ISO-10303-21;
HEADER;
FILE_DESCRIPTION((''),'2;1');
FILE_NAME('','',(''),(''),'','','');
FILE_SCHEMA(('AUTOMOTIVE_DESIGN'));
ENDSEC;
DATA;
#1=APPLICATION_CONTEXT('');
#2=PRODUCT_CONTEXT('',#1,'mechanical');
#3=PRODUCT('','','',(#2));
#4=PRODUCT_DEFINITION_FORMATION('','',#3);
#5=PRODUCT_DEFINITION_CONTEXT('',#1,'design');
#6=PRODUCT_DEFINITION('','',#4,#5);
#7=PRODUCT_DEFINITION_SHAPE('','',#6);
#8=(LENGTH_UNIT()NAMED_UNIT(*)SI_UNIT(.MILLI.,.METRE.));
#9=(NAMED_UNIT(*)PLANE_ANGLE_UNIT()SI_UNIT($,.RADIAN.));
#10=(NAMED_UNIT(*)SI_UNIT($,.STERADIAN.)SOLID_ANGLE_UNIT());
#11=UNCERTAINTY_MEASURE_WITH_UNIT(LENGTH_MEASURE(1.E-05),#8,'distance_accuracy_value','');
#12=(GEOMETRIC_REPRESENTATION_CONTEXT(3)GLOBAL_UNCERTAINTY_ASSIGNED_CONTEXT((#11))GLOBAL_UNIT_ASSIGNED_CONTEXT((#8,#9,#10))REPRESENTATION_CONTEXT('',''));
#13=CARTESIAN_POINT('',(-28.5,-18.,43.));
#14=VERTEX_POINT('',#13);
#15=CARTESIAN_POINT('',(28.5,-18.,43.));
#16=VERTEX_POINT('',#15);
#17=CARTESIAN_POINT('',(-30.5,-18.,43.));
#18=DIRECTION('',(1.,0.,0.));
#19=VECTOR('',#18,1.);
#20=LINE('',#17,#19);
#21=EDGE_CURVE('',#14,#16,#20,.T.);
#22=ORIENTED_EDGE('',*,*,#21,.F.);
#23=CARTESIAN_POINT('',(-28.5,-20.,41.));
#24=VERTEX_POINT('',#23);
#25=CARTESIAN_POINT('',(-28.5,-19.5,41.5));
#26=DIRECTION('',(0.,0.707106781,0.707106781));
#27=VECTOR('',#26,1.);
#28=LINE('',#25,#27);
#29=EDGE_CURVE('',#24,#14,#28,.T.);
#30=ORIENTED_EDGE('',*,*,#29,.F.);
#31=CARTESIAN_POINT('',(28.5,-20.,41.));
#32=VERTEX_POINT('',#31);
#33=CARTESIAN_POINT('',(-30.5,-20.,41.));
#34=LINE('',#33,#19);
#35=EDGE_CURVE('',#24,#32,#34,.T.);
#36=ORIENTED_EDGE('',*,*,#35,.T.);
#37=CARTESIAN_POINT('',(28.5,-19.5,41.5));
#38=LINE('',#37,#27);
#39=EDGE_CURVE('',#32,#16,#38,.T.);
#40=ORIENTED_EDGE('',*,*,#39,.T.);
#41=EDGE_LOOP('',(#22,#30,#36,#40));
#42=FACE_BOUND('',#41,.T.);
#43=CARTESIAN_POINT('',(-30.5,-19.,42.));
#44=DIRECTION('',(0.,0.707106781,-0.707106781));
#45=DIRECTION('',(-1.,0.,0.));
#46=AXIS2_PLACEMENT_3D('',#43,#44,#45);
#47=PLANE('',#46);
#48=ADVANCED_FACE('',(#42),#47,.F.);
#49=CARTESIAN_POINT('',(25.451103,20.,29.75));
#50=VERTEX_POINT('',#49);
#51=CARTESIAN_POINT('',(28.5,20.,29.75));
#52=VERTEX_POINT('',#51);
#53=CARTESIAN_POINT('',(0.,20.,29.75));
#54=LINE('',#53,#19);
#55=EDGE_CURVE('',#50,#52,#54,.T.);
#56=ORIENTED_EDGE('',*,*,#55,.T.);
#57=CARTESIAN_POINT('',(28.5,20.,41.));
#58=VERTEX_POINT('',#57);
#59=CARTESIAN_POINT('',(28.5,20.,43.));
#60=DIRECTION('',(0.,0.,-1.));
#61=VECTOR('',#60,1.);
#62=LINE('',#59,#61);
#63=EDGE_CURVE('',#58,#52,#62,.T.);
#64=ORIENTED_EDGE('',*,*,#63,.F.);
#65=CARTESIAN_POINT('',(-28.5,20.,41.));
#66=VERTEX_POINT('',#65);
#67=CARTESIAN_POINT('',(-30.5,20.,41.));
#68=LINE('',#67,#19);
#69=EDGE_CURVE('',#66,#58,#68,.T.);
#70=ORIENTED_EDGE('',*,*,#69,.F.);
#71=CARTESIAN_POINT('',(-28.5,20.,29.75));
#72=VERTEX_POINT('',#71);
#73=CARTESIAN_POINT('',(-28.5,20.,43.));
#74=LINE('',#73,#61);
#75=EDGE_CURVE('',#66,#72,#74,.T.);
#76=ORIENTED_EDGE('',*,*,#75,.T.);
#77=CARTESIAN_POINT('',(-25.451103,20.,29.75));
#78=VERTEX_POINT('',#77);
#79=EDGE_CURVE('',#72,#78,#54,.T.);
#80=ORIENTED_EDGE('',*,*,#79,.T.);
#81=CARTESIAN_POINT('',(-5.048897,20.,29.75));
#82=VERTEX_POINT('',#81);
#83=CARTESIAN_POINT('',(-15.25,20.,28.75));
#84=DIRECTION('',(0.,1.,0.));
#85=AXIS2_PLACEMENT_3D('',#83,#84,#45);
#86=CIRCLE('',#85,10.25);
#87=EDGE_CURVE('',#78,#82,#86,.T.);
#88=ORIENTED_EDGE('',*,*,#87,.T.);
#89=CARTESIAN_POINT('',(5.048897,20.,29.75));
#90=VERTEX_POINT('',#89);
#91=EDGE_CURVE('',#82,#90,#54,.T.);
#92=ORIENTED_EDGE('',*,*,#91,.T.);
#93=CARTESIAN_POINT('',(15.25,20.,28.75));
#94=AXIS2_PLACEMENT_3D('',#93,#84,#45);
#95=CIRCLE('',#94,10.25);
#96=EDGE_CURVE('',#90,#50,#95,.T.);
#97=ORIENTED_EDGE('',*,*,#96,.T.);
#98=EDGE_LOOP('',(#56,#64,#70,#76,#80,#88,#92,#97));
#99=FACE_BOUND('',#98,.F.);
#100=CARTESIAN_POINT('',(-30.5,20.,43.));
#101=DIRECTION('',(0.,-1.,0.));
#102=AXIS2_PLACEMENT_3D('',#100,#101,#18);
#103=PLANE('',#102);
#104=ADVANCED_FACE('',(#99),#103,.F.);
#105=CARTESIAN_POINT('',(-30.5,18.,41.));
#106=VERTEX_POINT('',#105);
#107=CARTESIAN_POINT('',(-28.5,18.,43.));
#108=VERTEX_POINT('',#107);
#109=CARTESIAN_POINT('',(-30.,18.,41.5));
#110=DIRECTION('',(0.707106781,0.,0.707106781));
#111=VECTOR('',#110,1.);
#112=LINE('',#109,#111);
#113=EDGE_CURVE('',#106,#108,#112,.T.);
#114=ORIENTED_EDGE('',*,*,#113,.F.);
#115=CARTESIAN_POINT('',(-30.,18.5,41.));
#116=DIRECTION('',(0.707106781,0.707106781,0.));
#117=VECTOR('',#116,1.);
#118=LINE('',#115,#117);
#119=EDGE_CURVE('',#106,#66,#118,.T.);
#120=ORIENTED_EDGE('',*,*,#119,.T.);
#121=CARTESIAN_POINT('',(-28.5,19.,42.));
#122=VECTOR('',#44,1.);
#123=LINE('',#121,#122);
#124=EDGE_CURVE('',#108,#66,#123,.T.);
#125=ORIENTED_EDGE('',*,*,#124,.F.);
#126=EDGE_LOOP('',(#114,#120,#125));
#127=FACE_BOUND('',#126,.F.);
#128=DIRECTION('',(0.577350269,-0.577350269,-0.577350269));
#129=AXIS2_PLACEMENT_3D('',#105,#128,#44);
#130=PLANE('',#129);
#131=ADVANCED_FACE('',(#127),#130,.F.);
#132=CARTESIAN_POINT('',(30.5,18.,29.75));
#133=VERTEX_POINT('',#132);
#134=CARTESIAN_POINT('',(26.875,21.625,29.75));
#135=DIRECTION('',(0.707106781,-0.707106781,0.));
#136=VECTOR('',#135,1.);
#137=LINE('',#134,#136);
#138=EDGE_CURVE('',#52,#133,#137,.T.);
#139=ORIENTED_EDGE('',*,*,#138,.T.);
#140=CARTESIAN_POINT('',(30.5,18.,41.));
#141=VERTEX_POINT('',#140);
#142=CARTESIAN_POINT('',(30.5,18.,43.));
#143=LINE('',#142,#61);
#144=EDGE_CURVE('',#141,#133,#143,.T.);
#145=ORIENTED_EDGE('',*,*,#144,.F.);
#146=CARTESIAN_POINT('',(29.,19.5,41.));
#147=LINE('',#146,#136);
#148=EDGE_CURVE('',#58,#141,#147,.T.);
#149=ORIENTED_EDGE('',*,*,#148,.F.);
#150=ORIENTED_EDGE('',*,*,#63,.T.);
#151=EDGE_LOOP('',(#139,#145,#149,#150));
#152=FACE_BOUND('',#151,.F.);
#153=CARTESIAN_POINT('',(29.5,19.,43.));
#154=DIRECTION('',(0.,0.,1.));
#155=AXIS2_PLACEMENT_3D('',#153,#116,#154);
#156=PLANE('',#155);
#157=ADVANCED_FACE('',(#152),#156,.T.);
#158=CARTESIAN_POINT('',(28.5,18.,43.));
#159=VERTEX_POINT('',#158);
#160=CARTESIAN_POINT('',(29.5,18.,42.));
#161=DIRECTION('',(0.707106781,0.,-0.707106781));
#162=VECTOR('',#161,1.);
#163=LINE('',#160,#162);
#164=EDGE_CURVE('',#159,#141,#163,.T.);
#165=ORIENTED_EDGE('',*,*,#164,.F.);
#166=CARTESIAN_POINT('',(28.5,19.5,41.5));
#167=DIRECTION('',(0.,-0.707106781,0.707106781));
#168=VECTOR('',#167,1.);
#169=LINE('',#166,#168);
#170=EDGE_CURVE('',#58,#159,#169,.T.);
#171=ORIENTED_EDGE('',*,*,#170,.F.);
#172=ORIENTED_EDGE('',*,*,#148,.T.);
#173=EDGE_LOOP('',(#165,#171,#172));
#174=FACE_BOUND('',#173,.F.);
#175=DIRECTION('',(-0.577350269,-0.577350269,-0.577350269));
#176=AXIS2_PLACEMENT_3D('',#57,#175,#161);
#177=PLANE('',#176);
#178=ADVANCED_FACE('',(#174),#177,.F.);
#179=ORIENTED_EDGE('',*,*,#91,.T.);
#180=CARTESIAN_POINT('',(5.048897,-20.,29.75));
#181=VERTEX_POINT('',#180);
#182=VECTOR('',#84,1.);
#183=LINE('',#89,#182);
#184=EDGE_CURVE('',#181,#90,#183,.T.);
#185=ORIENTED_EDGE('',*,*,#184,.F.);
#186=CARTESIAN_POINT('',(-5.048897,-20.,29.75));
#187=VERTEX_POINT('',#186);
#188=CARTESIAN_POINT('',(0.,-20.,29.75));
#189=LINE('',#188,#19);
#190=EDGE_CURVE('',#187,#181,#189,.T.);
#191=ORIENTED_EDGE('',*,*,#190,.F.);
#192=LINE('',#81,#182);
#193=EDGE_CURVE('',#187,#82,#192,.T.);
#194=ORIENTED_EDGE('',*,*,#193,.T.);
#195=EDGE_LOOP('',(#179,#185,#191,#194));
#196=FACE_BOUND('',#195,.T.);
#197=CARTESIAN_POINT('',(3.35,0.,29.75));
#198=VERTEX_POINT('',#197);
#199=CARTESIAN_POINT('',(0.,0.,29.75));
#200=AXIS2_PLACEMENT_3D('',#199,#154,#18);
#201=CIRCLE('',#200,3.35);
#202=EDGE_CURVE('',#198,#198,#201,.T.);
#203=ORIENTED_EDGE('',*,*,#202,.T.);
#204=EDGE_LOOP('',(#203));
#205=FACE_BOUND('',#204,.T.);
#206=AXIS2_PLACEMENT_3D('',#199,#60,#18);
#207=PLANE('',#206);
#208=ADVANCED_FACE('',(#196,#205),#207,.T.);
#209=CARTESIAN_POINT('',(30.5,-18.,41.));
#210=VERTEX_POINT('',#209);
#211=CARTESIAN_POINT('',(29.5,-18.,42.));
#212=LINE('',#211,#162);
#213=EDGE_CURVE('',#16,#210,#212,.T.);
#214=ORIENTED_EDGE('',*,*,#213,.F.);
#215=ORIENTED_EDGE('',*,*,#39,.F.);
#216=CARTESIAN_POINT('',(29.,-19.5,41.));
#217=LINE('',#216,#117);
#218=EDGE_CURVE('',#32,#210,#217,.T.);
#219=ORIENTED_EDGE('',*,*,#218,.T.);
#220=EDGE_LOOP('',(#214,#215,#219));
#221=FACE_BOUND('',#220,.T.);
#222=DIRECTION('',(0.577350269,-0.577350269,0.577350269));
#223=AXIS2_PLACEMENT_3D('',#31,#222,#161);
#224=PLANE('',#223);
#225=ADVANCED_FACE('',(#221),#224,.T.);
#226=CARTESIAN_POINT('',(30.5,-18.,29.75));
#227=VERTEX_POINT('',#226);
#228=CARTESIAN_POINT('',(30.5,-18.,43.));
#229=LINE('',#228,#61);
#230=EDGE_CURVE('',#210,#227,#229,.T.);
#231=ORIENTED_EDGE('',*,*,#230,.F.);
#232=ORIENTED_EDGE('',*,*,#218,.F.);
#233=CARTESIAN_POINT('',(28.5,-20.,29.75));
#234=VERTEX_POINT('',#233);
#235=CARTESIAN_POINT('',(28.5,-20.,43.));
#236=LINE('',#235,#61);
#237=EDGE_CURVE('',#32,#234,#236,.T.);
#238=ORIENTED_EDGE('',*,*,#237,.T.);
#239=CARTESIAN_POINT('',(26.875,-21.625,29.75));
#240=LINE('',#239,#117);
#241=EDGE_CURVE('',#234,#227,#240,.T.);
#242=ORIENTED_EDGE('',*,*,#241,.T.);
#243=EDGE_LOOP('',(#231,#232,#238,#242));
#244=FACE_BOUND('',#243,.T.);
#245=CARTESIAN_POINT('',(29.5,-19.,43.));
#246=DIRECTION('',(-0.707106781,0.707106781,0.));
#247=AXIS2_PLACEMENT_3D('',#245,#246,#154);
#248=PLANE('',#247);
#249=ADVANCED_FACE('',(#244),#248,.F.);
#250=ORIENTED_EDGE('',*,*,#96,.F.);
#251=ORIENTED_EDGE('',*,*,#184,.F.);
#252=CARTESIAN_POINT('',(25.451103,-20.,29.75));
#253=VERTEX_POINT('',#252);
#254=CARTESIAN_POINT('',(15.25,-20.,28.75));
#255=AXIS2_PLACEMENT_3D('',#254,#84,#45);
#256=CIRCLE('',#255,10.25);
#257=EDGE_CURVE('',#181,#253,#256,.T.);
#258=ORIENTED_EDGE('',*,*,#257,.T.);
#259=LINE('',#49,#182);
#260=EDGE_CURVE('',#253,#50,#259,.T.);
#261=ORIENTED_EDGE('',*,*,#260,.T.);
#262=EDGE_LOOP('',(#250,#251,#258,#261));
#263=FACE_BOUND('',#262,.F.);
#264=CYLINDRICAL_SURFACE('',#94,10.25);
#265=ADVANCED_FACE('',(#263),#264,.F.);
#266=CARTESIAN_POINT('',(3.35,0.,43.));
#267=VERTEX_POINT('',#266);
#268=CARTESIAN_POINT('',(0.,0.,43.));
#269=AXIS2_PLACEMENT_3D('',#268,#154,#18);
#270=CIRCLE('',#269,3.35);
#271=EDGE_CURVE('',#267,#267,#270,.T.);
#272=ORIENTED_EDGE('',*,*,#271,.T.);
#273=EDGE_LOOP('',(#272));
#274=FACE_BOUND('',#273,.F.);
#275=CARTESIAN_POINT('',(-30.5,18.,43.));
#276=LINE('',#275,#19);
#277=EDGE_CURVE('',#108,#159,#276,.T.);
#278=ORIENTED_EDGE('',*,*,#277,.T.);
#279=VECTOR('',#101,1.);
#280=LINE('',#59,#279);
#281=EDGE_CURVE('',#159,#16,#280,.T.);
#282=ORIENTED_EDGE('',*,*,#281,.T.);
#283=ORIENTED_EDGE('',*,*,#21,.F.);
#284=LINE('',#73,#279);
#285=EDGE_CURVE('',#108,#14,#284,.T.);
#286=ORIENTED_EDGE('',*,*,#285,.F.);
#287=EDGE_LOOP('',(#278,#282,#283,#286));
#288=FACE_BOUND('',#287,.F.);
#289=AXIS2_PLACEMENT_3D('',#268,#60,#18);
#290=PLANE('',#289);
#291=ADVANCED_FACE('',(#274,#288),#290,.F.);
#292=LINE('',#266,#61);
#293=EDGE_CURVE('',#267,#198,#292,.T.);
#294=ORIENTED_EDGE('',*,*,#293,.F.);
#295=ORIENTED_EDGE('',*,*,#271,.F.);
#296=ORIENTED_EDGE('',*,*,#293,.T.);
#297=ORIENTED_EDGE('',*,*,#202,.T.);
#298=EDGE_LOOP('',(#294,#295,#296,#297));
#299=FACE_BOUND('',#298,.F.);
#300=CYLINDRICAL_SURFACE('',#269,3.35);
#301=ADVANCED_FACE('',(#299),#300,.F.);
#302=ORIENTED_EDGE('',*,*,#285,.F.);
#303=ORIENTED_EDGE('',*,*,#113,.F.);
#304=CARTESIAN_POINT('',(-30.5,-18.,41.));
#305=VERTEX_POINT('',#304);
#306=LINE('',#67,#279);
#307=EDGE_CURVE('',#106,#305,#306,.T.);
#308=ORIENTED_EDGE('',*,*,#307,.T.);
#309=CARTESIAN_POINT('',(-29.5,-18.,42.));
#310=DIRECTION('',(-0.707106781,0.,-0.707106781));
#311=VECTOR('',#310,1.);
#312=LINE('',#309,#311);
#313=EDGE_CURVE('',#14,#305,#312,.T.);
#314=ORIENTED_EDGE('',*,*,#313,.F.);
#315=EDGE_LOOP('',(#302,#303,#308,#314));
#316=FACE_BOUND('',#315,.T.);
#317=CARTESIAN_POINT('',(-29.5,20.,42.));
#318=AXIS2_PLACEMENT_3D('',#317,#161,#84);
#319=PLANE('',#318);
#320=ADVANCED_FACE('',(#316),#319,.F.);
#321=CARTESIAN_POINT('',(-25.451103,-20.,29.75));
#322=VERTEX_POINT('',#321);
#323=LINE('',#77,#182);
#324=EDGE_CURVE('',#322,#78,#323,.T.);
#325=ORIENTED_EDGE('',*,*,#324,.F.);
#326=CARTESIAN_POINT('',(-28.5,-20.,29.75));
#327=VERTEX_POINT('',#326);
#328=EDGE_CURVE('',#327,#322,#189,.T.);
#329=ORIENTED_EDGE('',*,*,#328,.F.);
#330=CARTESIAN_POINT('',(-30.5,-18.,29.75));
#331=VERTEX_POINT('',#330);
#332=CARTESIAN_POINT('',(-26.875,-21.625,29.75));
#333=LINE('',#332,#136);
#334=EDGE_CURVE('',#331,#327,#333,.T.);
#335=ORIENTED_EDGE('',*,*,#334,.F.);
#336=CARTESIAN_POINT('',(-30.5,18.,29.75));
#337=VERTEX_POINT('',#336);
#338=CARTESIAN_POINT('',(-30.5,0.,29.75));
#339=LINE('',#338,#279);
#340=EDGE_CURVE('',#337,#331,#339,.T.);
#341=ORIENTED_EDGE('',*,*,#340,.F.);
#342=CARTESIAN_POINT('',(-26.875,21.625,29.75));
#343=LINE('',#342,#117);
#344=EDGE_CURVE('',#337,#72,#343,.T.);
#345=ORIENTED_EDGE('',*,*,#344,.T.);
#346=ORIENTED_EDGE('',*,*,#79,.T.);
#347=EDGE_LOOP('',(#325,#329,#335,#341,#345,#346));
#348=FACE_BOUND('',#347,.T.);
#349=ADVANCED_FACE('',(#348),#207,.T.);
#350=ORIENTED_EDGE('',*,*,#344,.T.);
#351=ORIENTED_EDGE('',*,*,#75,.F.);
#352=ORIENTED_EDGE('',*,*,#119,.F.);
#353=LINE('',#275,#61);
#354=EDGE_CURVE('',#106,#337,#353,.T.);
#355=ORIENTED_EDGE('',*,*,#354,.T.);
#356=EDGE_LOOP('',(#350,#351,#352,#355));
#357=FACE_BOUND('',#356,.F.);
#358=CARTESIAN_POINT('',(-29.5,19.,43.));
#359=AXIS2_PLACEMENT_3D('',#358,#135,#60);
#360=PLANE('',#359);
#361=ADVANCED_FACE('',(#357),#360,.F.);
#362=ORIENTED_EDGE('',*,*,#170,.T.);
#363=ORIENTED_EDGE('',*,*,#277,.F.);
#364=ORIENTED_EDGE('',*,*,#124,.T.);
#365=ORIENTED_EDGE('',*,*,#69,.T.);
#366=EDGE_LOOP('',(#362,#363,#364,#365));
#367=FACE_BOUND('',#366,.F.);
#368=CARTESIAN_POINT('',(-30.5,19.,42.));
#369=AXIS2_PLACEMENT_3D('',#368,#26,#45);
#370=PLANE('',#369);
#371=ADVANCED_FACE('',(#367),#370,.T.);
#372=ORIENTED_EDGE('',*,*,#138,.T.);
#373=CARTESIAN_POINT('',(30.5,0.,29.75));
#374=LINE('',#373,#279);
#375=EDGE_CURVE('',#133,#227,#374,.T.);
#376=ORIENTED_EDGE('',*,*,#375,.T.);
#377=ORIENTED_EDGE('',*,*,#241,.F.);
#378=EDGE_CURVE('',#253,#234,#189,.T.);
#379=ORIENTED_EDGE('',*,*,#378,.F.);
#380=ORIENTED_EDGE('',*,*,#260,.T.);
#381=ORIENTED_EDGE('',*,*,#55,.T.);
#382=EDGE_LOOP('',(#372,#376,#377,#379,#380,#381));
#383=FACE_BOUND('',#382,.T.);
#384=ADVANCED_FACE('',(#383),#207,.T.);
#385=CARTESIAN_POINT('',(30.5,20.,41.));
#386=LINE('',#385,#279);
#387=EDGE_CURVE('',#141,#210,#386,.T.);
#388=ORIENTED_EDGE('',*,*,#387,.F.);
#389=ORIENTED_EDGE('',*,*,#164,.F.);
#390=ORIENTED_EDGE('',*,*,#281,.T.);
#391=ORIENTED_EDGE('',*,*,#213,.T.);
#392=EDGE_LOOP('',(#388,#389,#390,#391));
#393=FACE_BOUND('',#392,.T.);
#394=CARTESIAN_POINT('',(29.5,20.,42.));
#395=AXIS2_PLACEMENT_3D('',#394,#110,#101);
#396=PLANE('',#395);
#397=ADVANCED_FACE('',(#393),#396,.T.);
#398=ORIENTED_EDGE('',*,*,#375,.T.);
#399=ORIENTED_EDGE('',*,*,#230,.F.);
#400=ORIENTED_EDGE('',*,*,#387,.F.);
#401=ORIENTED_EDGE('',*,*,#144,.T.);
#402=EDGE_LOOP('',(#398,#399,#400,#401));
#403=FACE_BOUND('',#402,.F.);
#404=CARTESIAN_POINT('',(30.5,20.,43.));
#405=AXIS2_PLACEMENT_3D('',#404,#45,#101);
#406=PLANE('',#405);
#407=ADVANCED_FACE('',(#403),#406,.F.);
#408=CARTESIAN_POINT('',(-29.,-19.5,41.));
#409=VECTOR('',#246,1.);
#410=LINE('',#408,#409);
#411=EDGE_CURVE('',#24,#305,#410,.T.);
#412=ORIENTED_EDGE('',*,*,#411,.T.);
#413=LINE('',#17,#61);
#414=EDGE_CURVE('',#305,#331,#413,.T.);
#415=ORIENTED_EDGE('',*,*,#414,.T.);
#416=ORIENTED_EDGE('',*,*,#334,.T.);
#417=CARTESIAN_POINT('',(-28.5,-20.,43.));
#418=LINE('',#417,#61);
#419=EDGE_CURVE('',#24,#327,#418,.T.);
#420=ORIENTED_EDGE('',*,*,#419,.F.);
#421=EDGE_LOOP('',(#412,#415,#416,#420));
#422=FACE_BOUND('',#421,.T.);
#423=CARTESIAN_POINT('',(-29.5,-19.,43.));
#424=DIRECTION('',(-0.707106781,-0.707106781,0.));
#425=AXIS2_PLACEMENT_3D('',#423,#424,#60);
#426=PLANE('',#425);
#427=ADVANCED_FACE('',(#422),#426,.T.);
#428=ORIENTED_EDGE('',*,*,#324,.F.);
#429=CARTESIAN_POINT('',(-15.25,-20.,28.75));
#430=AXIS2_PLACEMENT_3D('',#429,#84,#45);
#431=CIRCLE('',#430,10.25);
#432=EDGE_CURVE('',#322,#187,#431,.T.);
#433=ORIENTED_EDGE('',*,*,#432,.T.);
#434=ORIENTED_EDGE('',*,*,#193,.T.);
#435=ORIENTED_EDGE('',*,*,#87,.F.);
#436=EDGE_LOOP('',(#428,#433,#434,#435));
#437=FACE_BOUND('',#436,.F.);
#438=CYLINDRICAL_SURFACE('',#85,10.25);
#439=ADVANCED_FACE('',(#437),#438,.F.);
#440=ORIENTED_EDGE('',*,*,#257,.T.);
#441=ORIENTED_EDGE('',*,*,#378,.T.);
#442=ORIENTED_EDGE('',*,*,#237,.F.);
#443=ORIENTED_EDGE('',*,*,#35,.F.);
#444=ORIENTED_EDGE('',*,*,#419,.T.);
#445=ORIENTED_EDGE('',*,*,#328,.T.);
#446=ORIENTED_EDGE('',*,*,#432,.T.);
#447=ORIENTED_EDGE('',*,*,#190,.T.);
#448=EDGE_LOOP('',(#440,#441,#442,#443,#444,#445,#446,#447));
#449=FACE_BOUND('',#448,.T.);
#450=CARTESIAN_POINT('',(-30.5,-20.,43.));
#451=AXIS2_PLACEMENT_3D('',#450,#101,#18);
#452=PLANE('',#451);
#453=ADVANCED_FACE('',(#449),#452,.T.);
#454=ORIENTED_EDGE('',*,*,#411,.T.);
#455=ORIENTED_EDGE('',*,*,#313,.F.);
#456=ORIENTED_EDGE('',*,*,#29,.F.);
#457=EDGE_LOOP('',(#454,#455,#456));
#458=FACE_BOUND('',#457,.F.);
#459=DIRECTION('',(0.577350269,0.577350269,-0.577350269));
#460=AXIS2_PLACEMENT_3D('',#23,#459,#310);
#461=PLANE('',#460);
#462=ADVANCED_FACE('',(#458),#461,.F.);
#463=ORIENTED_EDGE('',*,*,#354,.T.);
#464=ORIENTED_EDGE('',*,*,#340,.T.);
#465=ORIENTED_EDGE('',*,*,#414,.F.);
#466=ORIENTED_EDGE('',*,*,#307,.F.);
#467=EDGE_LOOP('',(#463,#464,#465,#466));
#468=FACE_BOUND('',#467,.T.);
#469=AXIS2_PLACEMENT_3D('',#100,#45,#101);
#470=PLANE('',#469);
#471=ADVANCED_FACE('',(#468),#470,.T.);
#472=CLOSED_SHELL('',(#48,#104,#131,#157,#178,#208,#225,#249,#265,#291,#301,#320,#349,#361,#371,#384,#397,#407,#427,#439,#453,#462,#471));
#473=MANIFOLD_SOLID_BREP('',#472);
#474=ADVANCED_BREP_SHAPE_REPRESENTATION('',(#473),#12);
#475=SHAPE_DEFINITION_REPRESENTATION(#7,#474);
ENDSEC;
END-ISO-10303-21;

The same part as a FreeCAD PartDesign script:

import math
import FreeCAD as App
import Part
import Sketcher

V = App.Vector


def edges_at(feature, points):
    """Names of the edges that pass closest to the given points."""
    edges = feature.Shape.Edges
    near = lambda p: min(range(len(edges)), key=lambda i: edges[i].distToShape(Part.Vertex(*p))[0])
    return sorted({f"Edge{near(p) + 1}" for p in points})


def add_polygon(sketch, points):
    """Adds a closed chain of lines whose ends are joined by coincident constraints."""
    first, n = sketch.GeometryCount, len(points)
    for a, b in zip(points, points[1:] + points[:1]):
        sketch.addGeometry(Part.LineSegment(App.Vector(*a, 0), App.Vector(*b, 0)), False)
    for i in range(n):
        sketch.addConstraint(Sketcher.Constraint("Coincident", first + i, 2, first + (i + 1) % n, 1))

doc = App.newDocument("Part")
body = doc.addObject("PartDesign::Body", "Body")

# Sketch on XY plane
sketch1 = doc.addObject("Sketcher::SketchObject", "Sketch")
body.addObject(sketch1)
sketch1.AttachmentSupport = (doc.XY_Plane, [""])
sketch1.MapMode = "FlatFace"
add_polygon(sketch1, [(-30, 20), (-30, -20), (30, -20), (30, 20)])  # lines 0-3
sketch1.addConstraint([
    Sketcher.Constraint("Vertical", 0),
    Sketcher.Constraint("Horizontal", 1),
    Sketcher.Constraint("Vertical", 2),
    Sketcher.Constraint("Horizontal", 3),
    Sketcher.Constraint("Symmetric", 0, 2, 2, 2, -1, 1),
    Sketcher.Constraint("DistanceX", 1, 1, 1, 2, 61.0),
    Sketcher.Constraint("DistanceY", 0, 2, 0, 1, 40.0),
])
pad1 = doc.addObject("PartDesign::Pad", "Pad")
body.addObject(pad1)
pad1.Profile = sketch1
pad1.Length = 13.25

# Sketch on XZ plane
sketch2 = doc.addObject("Sketcher::SketchObject", "Sketch001")
body.addObject(sketch2)
sketch2.AttachmentSupport = (doc.XZ_Plane, [""])
sketch2.MapMode = "FlatFace"
sketch2.AttachmentOffset = App.Placement(V(0, 0, 20), App.Rotation())
sketch2.addGeometry([
    Part.ArcOfCircle(Part.Circle(V(-15, 14, 0), V(0, 0, 1), 10), math.radians(180), math.radians(360)),
    Part.LineSegment(V(-5, 14, 0), V(-26, 14, 0)),
    Part.ArcOfCircle(Part.Circle(V(15, 14, 0), V(0, 0, 1), 10), math.radians(180), math.radians(360)),
    Part.LineSegment(V(26, 14, 0), V(5, 14, 0)),
], False)
sketch2.addConstraint([
    Sketcher.Constraint("Coincident", 0, 1, 1, 2),
    Sketcher.Constraint("Coincident", 1, 1, 0, 2),
    Sketcher.Constraint("Coincident", 2, 1, 3, 2),
    Sketcher.Constraint("Coincident", 3, 1, 2, 2),
    Sketcher.Constraint("Horizontal", 1),
    Sketcher.Constraint("Horizontal", 3),
    Sketcher.Constraint("Equal", 0, 2),
    Sketcher.Constraint("Symmetric", 0, 3, 2, 3, -2),
    Sketcher.Constraint("Horizontal", 2, 3, 0, 1),
    Sketcher.Constraint("Horizontal", 1, 1, 2, 1),
    Sketcher.Constraint("Radius", 0, 10.25),
    Sketcher.Constraint("DistanceX", 1, 1, -1, 1, 5.0),
    Sketcher.Constraint("DistanceY", -1, 1, 0, 3, 14.25),
])
pocket1 = doc.addObject("PartDesign::Pocket", "Pocket")
body.addObject(pocket1)
pocket1.Profile = sketch2
pocket1.Length = 40
body2 = doc.addObject("PartDesign::Body", "Body001")
doc.recompute()

body.Placement = App.Placement(V(0, 0, 7), App.Rotation(V(0, 0, 1), 0))
boolean = doc.addObject("PartDesign::Boolean", "Boolean")
body2.addObject(boolean)
boolean.Type = "Fuse"
boolean.addObjects([body])

# Sketch on XY plane
sketch3 = doc.addObject("Sketcher::SketchObject", "Sketch002")
body2.addObject(sketch3)
sketch3.AttachmentSupport = (doc.getObject("XY_Plane001"), [""])
sketch3.MapMode = "FlatFace"
sketch3.AttachmentOffset = App.Placement(V(0, 0, 7), App.Rotation())
sketch3.addGeometry(Part.Circle(V(0, 0, 0), V(0, 0, 1), 3.4), False)
sketch3.addConstraint([
    Sketcher.Constraint("Coincident", 0, 3, -1, 1),
    Sketcher.Constraint("Diameter", 0, 6.7),
])
pocket2 = doc.addObject("PartDesign::Pocket", "Pocket001")
body2.addObject(pocket2)
pocket2.Profile = sketch3
pocket2.Length = 13.25
pocket2.Reversed = True
doc.recompute()

chamfer = doc.addObject("PartDesign::Chamfer", "Chamfer")
body2.addObject(chamfer)
chamfer.Base = (pocket2, edges_at(pocket2, [
    (30.5, 0, 7),
    (0, -20, 7),
    (-30.5, 0, 7),
    (0, 20, 7),
    (30.5, -20, 13.625),
    (30.5, 20, 13.625),
    (-30.5, 20, 13.625),
    (-30.5, -20, 13.625),
]))
chamfer.Size = 2
body3 = doc.addObject("PartDesign::Body", "Body002")
doc.recompute()

body2.Placement = App.Placement(V(0, 0, 50), App.Rotation(V(1, 0, 0), 180))
boolean2 = doc.addObject("PartDesign::Boolean", "Boolean001")
body3.addObject(boolean2)
boolean2.Type = "Fuse"
boolean2.addObjects([body2])

doc.recompute()
